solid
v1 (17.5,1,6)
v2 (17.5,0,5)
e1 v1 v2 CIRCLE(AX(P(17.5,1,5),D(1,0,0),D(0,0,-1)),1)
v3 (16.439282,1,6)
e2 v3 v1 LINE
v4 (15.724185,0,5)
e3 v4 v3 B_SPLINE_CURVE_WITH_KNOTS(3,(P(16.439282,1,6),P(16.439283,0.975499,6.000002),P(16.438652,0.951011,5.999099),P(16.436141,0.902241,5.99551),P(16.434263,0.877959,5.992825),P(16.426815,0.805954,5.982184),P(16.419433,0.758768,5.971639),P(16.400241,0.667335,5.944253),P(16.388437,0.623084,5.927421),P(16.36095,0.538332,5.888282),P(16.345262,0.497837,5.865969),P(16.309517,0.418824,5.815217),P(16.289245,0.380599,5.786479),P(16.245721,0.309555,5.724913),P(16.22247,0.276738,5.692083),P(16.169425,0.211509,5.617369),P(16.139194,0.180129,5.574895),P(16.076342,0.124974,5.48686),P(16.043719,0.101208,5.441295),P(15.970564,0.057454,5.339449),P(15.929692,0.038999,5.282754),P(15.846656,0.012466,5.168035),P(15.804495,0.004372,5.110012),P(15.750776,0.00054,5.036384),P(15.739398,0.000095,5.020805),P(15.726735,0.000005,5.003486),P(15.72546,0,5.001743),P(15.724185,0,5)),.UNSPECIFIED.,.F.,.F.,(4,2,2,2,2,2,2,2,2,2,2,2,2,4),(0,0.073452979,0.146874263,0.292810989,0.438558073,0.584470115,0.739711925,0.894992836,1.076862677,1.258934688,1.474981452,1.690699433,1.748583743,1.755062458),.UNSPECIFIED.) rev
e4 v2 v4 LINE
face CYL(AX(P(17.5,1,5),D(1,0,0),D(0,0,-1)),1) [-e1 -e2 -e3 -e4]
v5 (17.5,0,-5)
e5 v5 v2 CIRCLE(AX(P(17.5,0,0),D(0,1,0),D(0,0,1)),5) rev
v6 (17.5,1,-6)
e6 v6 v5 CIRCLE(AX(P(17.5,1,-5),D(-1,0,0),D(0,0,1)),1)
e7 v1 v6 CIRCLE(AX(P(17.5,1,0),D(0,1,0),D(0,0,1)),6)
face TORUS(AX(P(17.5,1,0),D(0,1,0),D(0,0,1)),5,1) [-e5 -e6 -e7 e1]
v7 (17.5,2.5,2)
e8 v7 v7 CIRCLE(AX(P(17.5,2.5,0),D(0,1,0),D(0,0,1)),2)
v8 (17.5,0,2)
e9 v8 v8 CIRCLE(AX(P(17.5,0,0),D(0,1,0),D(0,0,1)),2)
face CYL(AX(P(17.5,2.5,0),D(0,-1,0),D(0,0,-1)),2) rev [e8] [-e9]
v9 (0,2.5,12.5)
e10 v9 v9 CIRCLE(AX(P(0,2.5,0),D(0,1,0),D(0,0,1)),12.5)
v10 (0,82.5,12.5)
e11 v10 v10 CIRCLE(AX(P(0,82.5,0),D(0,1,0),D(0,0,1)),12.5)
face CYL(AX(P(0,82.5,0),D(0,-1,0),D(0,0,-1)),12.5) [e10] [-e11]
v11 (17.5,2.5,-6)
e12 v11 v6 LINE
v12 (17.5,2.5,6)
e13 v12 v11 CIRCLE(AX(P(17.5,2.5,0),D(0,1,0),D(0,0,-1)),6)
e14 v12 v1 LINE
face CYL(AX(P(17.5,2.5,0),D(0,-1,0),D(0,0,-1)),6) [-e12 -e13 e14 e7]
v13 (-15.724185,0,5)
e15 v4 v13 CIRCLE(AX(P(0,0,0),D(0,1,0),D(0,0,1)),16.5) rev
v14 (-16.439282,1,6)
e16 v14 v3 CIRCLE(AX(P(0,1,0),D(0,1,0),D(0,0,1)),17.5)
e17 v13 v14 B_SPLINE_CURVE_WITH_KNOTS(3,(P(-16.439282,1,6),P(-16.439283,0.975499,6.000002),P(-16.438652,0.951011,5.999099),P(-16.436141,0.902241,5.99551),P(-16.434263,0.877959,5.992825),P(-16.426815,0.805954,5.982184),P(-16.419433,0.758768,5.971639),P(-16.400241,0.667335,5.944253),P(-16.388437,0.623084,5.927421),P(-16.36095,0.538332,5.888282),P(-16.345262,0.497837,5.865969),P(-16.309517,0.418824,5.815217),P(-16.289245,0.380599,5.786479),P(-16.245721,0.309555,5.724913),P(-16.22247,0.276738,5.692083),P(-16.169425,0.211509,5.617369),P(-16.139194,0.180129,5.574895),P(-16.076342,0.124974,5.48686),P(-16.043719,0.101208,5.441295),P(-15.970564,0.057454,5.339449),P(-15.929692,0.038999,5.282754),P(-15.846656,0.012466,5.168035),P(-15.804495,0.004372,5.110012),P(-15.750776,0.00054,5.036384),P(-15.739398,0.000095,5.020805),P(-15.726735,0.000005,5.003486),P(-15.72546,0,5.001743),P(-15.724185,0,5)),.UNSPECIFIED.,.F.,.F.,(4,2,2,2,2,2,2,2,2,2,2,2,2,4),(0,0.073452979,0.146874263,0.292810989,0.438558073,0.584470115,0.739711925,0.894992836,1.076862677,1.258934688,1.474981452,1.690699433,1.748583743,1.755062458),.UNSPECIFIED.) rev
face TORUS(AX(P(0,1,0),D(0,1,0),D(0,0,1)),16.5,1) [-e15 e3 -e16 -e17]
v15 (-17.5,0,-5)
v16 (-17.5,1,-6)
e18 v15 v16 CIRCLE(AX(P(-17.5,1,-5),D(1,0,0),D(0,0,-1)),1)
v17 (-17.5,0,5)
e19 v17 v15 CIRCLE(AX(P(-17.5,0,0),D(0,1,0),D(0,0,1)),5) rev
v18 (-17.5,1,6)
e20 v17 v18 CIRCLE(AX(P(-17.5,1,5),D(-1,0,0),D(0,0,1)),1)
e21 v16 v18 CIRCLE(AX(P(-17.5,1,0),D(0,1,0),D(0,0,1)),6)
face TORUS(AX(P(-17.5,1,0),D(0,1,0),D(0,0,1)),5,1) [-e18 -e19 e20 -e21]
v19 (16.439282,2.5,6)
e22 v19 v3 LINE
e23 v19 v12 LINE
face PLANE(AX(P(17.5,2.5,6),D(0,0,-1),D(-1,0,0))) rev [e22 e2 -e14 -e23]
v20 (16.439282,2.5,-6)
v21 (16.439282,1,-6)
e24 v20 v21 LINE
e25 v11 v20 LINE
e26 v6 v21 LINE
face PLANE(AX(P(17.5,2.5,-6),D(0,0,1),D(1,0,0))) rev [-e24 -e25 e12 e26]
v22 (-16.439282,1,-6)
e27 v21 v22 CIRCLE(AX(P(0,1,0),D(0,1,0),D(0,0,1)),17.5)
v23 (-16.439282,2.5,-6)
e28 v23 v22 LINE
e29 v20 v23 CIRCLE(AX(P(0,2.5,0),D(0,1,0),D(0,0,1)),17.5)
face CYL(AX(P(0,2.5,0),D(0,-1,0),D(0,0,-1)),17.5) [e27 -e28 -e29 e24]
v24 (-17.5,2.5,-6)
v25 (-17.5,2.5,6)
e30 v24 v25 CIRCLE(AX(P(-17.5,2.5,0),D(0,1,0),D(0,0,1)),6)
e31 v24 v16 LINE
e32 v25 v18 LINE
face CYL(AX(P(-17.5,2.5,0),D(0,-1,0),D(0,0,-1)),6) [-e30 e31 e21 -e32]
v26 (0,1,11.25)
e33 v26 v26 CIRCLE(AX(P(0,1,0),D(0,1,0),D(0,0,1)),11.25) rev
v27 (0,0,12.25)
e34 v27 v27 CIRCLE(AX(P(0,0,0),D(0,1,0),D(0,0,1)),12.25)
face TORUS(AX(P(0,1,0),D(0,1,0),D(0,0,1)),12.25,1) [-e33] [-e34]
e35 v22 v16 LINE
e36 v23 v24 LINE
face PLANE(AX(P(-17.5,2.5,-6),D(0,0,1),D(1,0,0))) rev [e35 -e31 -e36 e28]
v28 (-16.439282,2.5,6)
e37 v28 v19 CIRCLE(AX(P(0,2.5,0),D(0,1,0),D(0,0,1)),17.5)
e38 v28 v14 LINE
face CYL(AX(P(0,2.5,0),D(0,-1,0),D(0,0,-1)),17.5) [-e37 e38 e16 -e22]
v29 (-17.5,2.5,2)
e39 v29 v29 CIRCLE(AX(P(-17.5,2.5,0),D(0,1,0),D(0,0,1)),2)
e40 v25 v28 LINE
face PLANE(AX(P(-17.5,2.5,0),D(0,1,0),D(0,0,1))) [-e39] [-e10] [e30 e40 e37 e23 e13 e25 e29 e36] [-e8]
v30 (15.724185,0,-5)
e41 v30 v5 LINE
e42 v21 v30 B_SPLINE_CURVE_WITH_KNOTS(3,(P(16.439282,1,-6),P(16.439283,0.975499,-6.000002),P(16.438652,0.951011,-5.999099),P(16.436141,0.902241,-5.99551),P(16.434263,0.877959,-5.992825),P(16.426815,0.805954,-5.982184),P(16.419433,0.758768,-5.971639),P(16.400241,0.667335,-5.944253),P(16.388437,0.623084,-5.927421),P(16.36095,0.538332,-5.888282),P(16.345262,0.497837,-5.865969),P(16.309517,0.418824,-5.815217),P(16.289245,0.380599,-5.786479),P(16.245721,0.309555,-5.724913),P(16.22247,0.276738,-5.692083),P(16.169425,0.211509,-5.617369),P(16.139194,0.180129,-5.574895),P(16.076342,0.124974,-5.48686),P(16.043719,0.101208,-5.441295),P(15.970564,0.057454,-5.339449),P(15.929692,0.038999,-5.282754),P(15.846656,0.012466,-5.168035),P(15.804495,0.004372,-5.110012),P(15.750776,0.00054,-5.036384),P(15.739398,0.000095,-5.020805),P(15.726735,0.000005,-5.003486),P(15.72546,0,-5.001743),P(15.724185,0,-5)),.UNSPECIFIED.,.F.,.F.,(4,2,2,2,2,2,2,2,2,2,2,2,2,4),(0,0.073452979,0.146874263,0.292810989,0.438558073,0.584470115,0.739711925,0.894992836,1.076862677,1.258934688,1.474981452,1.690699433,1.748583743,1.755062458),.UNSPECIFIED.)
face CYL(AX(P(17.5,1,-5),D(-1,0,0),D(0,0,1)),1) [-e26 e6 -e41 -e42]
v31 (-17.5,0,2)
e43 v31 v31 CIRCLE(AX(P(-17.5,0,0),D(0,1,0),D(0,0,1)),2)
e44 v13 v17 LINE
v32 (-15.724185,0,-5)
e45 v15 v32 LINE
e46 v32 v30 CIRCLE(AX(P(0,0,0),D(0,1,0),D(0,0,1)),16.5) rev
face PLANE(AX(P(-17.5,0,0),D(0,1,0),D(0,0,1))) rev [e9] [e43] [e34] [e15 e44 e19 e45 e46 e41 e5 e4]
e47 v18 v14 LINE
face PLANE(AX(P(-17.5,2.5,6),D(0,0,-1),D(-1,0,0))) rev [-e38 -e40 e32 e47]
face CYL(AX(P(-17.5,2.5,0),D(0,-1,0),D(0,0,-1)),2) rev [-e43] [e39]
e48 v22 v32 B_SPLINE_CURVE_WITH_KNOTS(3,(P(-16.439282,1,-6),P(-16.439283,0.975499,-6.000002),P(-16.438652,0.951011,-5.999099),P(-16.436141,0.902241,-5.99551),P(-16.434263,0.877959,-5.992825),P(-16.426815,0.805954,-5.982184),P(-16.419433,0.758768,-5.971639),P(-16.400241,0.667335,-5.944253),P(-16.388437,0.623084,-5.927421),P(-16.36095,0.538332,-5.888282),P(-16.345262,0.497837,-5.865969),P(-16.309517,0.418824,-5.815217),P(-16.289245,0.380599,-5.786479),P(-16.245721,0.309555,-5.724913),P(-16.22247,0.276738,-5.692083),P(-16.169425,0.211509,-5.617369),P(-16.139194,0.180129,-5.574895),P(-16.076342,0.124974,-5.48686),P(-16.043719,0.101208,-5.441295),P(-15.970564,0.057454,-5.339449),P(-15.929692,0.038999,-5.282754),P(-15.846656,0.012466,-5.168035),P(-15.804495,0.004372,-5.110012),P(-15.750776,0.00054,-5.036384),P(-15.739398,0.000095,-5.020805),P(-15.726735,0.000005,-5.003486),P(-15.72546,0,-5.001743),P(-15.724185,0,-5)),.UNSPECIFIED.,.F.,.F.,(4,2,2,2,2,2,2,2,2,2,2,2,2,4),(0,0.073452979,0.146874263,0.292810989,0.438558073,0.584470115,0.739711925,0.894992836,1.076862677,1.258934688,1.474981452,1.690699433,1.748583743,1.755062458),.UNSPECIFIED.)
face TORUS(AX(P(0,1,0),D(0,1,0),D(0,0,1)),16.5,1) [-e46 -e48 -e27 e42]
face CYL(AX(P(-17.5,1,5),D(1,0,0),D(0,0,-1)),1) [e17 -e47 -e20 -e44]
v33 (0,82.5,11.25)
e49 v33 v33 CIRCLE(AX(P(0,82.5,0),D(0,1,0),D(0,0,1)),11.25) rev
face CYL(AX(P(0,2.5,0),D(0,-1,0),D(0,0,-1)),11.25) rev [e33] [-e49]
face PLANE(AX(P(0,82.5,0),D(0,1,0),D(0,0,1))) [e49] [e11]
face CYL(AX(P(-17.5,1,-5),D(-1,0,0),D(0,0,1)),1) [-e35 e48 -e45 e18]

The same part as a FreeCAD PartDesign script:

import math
import FreeCAD as App
import Part
import Sketcher
from FreeCAD import Vector


def edges_at(feature, points):
    """Names of the edges that pass closest to the given points."""
    edges = feature.Shape.Edges
    near = lambda p: min(range(len(edges)), key=lambda i: edges[i].distToShape(Part.Vertex(*p))[0])
    return sorted({f"Edge{near(p) + 1}" for p in points})

doc = App.newDocument("Part")
body = doc.addObject("PartDesign::Body", "Body")

sketch1 = body.newObject("Sketcher::SketchObject", "Sketch")
sketch1.AttachmentSupport = (doc.getObject("XZ_Plane"), [""])
sketch1.MapMode = "FlatFace"
sketch1.addGeometry([
    Part.LineSegment(Vector(-16.4, -6, 0), Vector(-17.5, -6, 0)),
    Part.ArcOfCircle(Part.Circle(Vector(-17.5, 0, 0), Vector(0, 0, 1), 6), math.radians(90), math.radians(270)),
    Part.LineSegment(Vector(-17.5, 6, 0), Vector(-16.4, 6, 0)),
    Part.ArcOfCircle(Part.Circle(Vector(0, 0, 0), Vector(0, 0, 1), 17.5), math.radians(20), math.radians(160)),
    Part.LineSegment(Vector(16.4, 6, 0), Vector(17.5, 6, 0)),
    Part.ArcOfCircle(Part.Circle(Vector(17.5, 0, 0), Vector(0, 0, 1), 6), math.radians(-90), math.radians(90)),
    Part.LineSegment(Vector(17.5, -6, 0), Vector(16.4, -6, 0)),
    Part.ArcOfCircle(Part.Circle(Vector(0, 0, 0), Vector(0, 0, 1), 17.5), math.radians(-160), math.radians(-20)),
    Part.Circle(Vector(17.5, 0, 0), Vector(0, 0, 1), 2),
    Part.Circle(Vector(0, 0, 0), Vector(0, 0, 1), 11.2),
    Part.Circle(Vector(-17.5, 0, 0), Vector(0, 0, 1), 2),
], False)
sketch1.addConstraint([
    Sketcher.Constraint("Tangent", 0, 2, 1, 2),
    Sketcher.Constraint("Tangent", 1, 1, 2, 1),
    Sketcher.Constraint("Coincident", 2, 2, 3, 2),
    Sketcher.Constraint("Coincident", 3, 1, 4, 1),
    Sketcher.Constraint("Tangent", 4, 2, 5, 2),
    Sketcher.Constraint("Tangent", 5, 1, 6, 1),
    Sketcher.Constraint("Coincident", 6, 2, 7, 2),
    Sketcher.Constraint("Coincident", 7, 1, 0, 1),
    Sketcher.Constraint("Horizontal", 0),
    Sketcher.Constraint("Horizontal", 2),
    Sketcher.Constraint("Horizontal", 4),
    Sketcher.Constraint("Horizontal", 6),
    Sketcher.Constraint("Coincident", 3, 3, -1, 1),
    Sketcher.Constraint("Coincident", 7, 3, -1, 1),
    Sketcher.Constraint("Coincident", 9, 3, -1, 1),
    Sketcher.Constraint("Coincident", 8, 3, 5, 3),
    Sketcher.Constraint("Coincident", 10, 3, 1, 3),
    Sketcher.Constraint("Equal", 1, 5),
    Sketcher.Constraint("Equal", 3, 7),
    Sketcher.Constraint("Equal", 8, 10),
    Sketcher.Constraint("Symmetric", 1, 3, 5, 3, -1, 1),
    Sketcher.Constraint("PointOnObject", 1, 3, -1),
    Sketcher.Constraint("Diameter", 8, 4.0),
    Sketcher.Constraint("Radius", 1, 6.0),
    Sketcher.Constraint("Diameter", 9, 22.5),
    Sketcher.Constraint("Radius", 3, 17.5),
    Sketcher.Constraint("DistanceX", 1, 3, 5, 3, 35.0),
])
pad1 = body.newObject("PartDesign::Pad", "Pad")
pad1.Profile = sketch1
pad1.Length = 2.5
pad1.Reversed = True

sketch2 = body.newObject("Sketcher::SketchObject", "Sketch001")
sketch2.AttachmentSupport = (doc.getObject("XZ_Plane"), [""])
sketch2.MapMode = "FlatFace"
sketch2.AttachmentOffset = App.Placement(Vector(0, 0, -2.5), App.Rotation())
sketch2.addGeometry([
    Part.Circle(Vector(0, 0, 0), Vector(0, 0, 1), 12),
    Part.Circle(Vector(0, 0, 0), Vector(0, 0, 1), 11),
], False)
sketch2.addConstraint([
    Sketcher.Constraint("Coincident", 0, 3, -1, 1),
    Sketcher.Constraint("Coincident", 1, 3, -1, 1),
    Sketcher.Constraint("Diameter", 0, 25.0),
    Sketcher.Constraint("Diameter", 1, 22.5),
])
pad2 = body.newObject("PartDesign::Pad", "Pad001")
pad2.Profile = sketch2
pad2.Length = 80
pad2.Reversed = True
doc.recompute()

fillet = body.newObject("PartDesign::Fillet", "Fillet")
fillet.Base = (pad2, edges_at(pad2, [
    (16.97, 0, 6),
    (0, 0, 17.5),
    (-16.97, 0, 6),
    (-23.5, 0, 0),
    (0, 0, -11.25),
    (-16.97, 0, -6),
    (0, 0, -17.5),
    (16.97, 0, -6),
    (23.5, 0, 0),
]))
fillet.Radius = 1

doc.recompute()
